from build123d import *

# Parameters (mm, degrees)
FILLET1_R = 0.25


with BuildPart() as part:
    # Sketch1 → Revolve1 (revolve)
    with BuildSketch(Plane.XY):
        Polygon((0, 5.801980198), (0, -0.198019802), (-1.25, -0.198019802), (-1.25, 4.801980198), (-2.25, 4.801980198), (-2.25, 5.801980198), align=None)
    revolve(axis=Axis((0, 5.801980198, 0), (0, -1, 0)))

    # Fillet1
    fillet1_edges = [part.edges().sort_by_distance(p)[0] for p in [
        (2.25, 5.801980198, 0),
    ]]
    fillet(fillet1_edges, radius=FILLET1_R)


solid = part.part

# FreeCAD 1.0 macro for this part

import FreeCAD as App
import Part
import Sketcher
from FreeCAD import Vector


def edges_at(feature, points):
    """Names of the edges that pass closest to the given points."""
    edges = feature.Shape.Edges
    near = lambda p: min(range(len(edges)), key=lambda i: edges[i].distToShape(Part.Vertex(*p))[0])
    return sorted({f"Edge{near(p) + 1}" for p in points})


def add_polygon(sketch, points):
    """Adds a closed chain of lines whose ends are joined by coincident constraints."""
    first, n = sketch.GeometryCount, len(points)
    for a, b in zip(points, points[1:] + points[:1]):
        sketch.addGeometry(Part.LineSegment(App.Vector(*a, 0), App.Vector(*b, 0)), False)
    for i in range(n):
        sketch.addConstraint(Sketcher.Constraint("Coincident", first + i, 2, first + (i + 1) % n, 1))

doc = App.newDocument("Part")
params = doc.addObject("Spreadsheet::Sheet", "Params")
for row, (alias, value) in enumerate([
    ("sketch1_width", "1 mm"),
    ("sketch1_height", "6 mm"),
    ("sketch1_width2", "2.25 mm"),
    ("revolution_angle", "360 deg"),
    ("fillet_radius", "0.25 mm"),
], start=1):
    params.set(f"A{row}", alias)
    params.set(f"B{row}", "=" + value)
    params.setAlias(f"B{row}", alias)

body = doc.addObject("PartDesign::Body", "Body")

# Sketch on XY plane
sketch1 = body.newObject("Sketcher::SketchObject", "Sketch")
sketch1.AttachmentSupport = (doc.getObject("XY_Plane"), [""])
sketch1.MapMode = "FlatFace"
add_polygon(sketch1, [(0, -0.19802), (0, 5.80198), (-2.25, 5.80198), (-2.25, 4.80198), (-1.25, 4.80198), (-1.25, -0.19802)])  # lines 0-5
sketch1.addConstraint([
    Sketcher.Constraint("Vertical", 0),
    Sketcher.Constraint("Horizontal", 1),
    Sketcher.Constraint("Vertical", 2),
    Sketcher.Constraint("Horizontal", 3),
    Sketcher.Constraint("Vertical", 4),
    Sketcher.Constraint("Horizontal", 5),
    Sketcher.Constraint("PointOnObject", 0, 2, -2),
    Sketcher.Constraint("Equal", 3, 2),
    Sketcher.Constraint("DistanceX", 3, 1, 3, 2, 1.0),
    Sketcher.Constraint("DistanceY", 0, 1, 0, 2, 6.0),
    Sketcher.Constraint("DistanceX", 1, 2, 1, 1, 2.25),
    Sketcher.Constraint("DistanceY", -1, 1, 0, 2, 5.80198),
])
sketch1.setExpression("Constraints[14]", "Params.sketch1_width")
sketch1.setExpression("Constraints[15]", "Params.sketch1_height")
sketch1.setExpression("Constraints[16]", "Params.sketch1_width2")
revolution = body.newObject("PartDesign::Revolution", "Revolution")
revolution.Profile = sketch1
revolution.ReferenceAxis = (sketch1, ["V_Axis"])
revolution.setExpression("Angle", "Params.revolution_angle")
doc.recompute()

fillet = body.newObject("PartDesign::Fillet", "Fillet")
fillet.Base = (revolution, edges_at(revolution, [(2.25, 5.802, 0)]))
fillet.setExpression("Radius", "Params.fillet_radius")

doc.recompute()
